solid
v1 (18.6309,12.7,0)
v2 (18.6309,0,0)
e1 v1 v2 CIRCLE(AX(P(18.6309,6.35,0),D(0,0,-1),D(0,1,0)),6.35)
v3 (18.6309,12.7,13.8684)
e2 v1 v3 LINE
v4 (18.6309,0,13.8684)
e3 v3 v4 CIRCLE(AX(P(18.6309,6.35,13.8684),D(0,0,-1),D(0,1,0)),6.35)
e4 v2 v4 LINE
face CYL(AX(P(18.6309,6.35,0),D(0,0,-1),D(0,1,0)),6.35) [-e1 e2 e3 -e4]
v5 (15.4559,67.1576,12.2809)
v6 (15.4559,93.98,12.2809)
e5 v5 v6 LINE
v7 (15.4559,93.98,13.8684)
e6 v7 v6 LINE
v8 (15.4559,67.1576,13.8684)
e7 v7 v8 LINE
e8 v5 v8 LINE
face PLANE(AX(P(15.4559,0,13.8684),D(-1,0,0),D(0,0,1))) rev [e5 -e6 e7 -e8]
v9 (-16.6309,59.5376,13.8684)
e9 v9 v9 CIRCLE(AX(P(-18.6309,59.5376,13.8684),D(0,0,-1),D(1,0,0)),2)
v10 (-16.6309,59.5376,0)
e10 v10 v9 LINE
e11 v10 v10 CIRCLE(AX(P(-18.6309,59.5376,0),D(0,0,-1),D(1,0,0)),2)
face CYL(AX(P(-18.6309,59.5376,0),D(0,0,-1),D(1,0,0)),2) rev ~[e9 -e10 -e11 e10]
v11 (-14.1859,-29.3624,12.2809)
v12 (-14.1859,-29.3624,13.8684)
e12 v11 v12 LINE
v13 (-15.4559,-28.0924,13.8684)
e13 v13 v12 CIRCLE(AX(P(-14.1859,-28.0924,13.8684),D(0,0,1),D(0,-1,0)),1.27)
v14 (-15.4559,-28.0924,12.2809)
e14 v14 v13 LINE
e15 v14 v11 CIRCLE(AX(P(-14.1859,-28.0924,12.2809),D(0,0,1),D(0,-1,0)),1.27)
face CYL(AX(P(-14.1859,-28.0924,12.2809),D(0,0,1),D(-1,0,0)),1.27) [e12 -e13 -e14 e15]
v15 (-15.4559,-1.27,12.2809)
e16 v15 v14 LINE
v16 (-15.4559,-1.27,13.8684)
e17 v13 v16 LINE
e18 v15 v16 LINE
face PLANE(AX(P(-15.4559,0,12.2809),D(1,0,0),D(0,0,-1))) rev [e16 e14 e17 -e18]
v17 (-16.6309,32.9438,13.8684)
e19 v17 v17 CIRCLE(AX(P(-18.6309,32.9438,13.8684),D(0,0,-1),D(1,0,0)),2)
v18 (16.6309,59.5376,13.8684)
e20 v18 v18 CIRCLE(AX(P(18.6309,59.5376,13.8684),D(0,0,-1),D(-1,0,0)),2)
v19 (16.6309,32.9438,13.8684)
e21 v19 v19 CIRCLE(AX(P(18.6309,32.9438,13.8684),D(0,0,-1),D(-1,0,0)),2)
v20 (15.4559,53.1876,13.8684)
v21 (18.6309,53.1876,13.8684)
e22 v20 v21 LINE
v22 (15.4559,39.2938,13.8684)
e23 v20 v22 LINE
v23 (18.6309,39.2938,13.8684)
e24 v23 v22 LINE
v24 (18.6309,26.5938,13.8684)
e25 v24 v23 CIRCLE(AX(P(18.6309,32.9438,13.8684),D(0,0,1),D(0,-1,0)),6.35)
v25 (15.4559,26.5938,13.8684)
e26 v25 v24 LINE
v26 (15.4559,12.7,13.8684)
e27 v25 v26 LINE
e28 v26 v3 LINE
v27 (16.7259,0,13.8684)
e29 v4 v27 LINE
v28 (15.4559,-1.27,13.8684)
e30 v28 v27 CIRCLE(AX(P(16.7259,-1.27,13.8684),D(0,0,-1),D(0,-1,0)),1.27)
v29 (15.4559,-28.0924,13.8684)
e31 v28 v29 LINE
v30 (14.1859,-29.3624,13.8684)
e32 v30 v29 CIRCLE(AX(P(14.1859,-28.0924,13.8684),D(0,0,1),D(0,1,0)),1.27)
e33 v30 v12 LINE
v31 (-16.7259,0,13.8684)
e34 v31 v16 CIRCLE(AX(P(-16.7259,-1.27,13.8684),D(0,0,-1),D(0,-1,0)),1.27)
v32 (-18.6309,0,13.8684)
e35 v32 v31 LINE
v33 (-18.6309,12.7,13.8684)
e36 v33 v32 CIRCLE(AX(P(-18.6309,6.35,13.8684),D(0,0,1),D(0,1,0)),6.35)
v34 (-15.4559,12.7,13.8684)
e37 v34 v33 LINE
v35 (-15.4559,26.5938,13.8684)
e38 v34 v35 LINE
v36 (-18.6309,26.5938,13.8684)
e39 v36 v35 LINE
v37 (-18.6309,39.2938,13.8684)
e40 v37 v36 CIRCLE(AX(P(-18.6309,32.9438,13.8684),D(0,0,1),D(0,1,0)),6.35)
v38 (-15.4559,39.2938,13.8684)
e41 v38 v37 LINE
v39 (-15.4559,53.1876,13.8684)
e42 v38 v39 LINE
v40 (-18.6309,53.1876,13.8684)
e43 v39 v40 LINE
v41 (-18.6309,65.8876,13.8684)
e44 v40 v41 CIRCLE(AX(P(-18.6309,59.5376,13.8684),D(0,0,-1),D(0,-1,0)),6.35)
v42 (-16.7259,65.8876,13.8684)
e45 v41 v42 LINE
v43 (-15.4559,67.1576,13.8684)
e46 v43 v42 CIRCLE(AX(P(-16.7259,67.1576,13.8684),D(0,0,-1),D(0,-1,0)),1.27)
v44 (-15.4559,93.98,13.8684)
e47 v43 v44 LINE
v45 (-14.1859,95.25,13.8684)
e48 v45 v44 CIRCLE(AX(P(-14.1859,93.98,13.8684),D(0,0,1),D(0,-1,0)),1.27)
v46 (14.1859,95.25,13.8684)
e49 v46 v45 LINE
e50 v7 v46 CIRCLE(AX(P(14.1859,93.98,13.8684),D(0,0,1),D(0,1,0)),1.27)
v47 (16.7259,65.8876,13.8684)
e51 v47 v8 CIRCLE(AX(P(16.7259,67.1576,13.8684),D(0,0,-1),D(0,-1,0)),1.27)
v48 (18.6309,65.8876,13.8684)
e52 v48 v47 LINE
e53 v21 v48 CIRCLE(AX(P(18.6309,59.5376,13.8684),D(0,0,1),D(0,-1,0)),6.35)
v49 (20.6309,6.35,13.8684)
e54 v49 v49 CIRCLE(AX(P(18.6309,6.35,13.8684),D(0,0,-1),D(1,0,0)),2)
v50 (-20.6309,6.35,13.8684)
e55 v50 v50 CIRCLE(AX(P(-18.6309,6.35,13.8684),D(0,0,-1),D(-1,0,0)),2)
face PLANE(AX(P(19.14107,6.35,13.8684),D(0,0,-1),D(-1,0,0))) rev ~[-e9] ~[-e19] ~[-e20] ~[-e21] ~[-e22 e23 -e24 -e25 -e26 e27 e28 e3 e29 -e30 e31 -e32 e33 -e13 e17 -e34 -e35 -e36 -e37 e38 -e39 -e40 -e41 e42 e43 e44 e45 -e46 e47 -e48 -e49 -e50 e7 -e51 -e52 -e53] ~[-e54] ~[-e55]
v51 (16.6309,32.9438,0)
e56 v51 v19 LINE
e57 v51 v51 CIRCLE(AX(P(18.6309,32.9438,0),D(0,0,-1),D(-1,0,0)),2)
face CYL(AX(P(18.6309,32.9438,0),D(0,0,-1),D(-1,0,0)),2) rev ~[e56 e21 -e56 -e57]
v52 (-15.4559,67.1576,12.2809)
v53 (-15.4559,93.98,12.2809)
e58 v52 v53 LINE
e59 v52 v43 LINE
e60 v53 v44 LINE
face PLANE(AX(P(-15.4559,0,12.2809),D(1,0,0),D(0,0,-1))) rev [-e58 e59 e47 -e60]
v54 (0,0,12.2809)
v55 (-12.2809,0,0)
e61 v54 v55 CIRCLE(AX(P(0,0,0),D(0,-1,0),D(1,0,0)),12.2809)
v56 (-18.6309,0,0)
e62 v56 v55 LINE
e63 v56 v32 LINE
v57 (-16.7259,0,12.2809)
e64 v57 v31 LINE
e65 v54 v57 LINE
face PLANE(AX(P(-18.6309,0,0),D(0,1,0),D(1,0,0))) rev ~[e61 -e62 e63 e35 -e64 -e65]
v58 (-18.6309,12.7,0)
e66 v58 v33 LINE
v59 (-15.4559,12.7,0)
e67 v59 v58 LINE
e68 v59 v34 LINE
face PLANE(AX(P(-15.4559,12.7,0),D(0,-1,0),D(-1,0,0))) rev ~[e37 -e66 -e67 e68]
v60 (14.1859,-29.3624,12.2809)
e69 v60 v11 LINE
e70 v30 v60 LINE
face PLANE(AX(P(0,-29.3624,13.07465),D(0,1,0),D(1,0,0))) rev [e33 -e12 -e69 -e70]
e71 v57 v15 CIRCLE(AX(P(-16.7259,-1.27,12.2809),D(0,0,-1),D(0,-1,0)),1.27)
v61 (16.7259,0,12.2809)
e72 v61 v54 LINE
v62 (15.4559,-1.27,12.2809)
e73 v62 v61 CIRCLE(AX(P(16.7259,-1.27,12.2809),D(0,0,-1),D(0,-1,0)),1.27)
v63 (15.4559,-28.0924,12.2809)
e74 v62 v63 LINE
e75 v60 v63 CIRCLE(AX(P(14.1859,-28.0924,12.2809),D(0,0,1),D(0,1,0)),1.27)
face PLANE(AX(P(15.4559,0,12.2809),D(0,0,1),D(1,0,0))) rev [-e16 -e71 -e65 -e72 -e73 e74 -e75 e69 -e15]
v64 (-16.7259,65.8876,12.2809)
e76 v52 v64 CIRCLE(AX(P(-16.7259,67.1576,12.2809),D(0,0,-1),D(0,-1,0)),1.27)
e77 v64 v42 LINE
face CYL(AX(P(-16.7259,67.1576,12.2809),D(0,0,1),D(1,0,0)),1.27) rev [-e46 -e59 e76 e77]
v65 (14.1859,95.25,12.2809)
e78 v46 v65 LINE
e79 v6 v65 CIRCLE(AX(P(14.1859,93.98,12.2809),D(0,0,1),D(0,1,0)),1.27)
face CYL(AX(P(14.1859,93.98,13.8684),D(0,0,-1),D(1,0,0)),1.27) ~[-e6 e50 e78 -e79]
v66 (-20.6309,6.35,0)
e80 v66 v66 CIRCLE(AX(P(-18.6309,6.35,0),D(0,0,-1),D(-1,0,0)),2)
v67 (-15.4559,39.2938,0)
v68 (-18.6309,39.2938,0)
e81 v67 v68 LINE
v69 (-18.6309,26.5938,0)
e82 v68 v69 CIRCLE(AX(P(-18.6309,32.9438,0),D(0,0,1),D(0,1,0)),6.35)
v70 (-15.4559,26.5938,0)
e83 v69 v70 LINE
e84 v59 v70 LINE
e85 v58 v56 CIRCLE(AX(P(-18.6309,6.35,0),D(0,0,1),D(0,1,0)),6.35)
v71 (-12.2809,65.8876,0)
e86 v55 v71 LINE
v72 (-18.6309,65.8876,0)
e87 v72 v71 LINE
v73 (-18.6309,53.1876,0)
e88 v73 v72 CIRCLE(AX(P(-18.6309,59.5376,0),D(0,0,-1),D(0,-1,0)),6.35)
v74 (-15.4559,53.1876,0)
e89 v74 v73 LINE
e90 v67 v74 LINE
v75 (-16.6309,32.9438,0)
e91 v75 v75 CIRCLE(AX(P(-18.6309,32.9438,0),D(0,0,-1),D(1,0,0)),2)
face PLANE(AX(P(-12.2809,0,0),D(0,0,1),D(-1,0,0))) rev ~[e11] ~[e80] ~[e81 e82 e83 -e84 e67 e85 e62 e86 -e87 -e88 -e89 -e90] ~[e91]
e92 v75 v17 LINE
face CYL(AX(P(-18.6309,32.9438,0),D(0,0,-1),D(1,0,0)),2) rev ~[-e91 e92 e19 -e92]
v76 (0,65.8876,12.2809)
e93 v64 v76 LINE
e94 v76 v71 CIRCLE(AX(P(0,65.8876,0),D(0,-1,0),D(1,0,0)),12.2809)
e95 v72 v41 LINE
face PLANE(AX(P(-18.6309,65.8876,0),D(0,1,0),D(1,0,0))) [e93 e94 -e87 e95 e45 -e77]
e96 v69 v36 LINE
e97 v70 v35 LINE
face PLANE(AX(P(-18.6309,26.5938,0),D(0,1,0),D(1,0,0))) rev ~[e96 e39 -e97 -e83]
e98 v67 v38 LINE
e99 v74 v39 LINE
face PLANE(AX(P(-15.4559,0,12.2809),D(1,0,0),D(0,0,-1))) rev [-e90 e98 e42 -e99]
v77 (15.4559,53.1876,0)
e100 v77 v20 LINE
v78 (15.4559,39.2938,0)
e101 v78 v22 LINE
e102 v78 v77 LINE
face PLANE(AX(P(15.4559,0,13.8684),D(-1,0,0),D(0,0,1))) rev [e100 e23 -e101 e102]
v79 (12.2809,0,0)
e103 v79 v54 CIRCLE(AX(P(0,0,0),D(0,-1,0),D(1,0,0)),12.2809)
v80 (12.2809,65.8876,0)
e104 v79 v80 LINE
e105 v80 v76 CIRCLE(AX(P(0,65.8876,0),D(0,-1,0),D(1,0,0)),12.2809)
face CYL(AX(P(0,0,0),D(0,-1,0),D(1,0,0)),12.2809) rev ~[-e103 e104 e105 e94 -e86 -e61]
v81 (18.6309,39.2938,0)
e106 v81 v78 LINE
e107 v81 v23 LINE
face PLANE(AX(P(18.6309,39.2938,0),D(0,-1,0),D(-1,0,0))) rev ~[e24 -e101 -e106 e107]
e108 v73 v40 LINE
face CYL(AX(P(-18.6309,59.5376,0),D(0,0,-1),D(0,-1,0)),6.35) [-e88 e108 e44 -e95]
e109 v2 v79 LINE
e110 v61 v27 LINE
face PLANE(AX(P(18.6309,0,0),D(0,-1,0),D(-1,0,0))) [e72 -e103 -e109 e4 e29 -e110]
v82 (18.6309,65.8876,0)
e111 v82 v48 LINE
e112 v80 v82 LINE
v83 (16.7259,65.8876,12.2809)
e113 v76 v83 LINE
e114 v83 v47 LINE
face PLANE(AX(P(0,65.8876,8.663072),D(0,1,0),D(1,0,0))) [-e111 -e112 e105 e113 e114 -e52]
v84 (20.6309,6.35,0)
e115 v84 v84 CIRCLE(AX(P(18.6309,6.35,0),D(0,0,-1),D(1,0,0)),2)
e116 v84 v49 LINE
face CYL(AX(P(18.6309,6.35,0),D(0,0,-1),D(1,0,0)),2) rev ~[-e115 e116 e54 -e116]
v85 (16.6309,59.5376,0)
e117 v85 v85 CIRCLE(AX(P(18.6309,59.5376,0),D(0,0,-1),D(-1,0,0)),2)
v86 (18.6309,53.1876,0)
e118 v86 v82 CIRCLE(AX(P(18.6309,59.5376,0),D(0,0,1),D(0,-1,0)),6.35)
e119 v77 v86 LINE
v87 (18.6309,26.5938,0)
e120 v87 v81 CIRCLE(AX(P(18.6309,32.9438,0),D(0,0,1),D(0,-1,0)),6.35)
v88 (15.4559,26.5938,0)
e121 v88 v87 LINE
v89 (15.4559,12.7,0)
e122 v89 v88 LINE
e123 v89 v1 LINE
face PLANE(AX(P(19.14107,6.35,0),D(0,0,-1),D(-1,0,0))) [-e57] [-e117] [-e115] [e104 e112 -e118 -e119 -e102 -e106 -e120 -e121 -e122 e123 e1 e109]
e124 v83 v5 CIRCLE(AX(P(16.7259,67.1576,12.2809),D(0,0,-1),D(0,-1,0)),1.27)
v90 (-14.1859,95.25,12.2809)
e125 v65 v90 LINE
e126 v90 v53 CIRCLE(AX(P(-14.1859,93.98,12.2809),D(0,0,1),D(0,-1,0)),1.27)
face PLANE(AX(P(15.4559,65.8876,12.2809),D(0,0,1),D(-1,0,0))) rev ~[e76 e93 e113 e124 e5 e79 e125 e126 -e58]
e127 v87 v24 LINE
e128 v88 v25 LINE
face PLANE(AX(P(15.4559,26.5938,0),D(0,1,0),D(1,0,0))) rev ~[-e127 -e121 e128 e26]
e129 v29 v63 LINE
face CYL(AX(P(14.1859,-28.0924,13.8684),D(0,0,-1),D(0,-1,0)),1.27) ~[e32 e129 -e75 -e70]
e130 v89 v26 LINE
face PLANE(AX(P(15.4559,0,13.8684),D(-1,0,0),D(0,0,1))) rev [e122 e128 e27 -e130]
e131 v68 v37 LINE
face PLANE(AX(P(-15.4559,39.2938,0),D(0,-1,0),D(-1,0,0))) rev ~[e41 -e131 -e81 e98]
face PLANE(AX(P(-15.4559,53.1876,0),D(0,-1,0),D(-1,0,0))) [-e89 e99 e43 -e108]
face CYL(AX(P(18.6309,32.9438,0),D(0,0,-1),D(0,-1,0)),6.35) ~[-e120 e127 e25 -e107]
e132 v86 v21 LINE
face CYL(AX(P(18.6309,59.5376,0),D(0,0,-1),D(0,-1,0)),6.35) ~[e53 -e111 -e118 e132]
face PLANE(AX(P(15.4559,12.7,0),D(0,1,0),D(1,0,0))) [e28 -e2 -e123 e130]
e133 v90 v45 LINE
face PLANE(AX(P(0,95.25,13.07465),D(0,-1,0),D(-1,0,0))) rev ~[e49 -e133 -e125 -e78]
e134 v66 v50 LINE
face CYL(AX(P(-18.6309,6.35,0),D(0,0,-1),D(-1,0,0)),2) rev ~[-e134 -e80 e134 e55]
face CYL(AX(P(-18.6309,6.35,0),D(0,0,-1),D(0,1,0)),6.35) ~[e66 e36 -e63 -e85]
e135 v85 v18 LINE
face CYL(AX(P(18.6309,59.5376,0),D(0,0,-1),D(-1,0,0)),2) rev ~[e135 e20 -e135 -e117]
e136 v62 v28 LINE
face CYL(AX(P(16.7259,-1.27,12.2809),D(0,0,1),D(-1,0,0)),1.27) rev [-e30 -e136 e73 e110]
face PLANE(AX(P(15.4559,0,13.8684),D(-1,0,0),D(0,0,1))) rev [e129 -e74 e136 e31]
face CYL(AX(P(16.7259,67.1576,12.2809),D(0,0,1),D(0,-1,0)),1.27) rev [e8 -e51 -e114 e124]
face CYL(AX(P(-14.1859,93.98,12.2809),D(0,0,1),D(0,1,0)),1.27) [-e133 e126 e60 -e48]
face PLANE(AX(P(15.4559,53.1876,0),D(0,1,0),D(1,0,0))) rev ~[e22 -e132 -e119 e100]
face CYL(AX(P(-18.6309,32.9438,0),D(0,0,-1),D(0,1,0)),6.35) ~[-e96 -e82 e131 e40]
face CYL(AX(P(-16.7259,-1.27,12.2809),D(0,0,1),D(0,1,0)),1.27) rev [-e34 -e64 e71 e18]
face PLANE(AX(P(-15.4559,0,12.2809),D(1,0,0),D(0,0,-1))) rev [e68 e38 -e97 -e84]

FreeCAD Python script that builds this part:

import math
import FreeCAD as App
import Part
import Sketcher

V = App.Vector
Q = App.Units.Quantity


def edges_at(feature, points):
    """Names of the edges that pass closest to the given points."""
    edges = feature.Shape.Edges
    near = lambda p: min(range(len(edges)), key=lambda i: edges[i].distToShape(Part.Vertex(*p))[0])
    return sorted({f"Edge{near(p) + 1}" for p in points})


def add_polygon(sketch, points):
    """Adds a closed chain of lines whose ends are joined by coincident constraints."""
    first, n = sketch.GeometryCount, len(points)
    for a, b in zip(points, points[1:] + points[:1]):
        sketch.addGeometry(Part.LineSegment(App.Vector(*a, 0), App.Vector(*b, 0)), False)
    for i in range(n):
        sketch.addConstraint(Sketcher.Constraint("Coincident", first + i, 2, first + (i + 1) % n, 1))

doc = App.newDocument("Part")
body = doc.addObject("PartDesign::Body", "Body")

sketch1 = doc.addObject("Sketcher::SketchObject", "Sketch")
body.addObject(sketch1)
sketch1.AttachmentSupport = (doc.XZ_Plane, [""])
sketch1.MapMode = "FlatFace"
sketch1.addGeometry([
    Part.LineSegment(V(-12.2809, 0, 0), V(-15.4559, 0, 0)),
    Part.LineSegment(V(-15.4559, 0, 0), V(-15.4559, 13.8684, 0)),
    Part.LineSegment(V(-15.4559, 13.8684, 0), V(15.4559, 13.8684, 0)),
    Part.LineSegment(V(15.4559, 13.8684, 0), V(15.4559, 0, 0)),
    Part.LineSegment(V(15.4559, 0, 0), V(12.2809, 0, 0)),
    Part.ArcOfCircle(Part.Circle(V(0, 0, 0), V(0, 0, 1), 12.2809), math.radians(0), math.radians(180)),
], False)
sketch1.addConstraint([
    Sketcher.Constraint("Coincident", 0, 2, 1, 1),
    Sketcher.Constraint("Coincident", 1, 2, 2, 1),
    Sketcher.Constraint("Coincident", 2, 2, 3, 1),
    Sketcher.Constraint("Coincident", 3, 2, 4, 1),
    Sketcher.Constraint("Coincident", 4, 2, 5, 1),
    Sketcher.Constraint("Coincident", 5, 2, 0, 1),
    Sketcher.Constraint("Horizontal", 0),
    Sketcher.Constraint("Vertical", 1),
    Sketcher.Constraint("Horizontal", 2),
    Sketcher.Constraint("Vertical", 3),
    Sketcher.Constraint("Horizontal", 4),
    Sketcher.Constraint("Coincident", 5, 3, -1, 1),
    Sketcher.Constraint("Symmetric", 0, 2, 3, 2, -1, 1),
    Sketcher.Constraint("PointOnObject", 0, 2, -1),
    Sketcher.Constraint("Radius", 5, Q("0.4835 in")),
    Sketcher.Constraint("DistanceX", 0, 2, 0, 1, Q("0.125 in")),
    Sketcher.Constraint("DistanceY", 1, 1, 1, 2, Q("0.546 in")),
])
pad1 = doc.addObject("PartDesign::Pad", "Pad")
body.addObject(pad1)
pad1.Profile = sketch1
pad1.Length = Q("2.594 in")
pad1.Reversed = True

sketch2 = doc.addObject("Sketcher::SketchObject", "Sketch001")
body.addObject(sketch2)
sketch2.AttachmentSupport = (doc.XZ_Plane, [""])
sketch2.MapMode = "FlatFace"
sketch2.AttachmentOffset = App.Placement(V(0, 0, -2.594 * 25.4), App.Rotation())
add_polygon(sketch2, [(15.4559, 12.2809), (-15.4559, 12.2809), (-15.4559, 13.8684), (15.4559, 13.8684)])
sketch2.addConstraint([
    Sketcher.Constraint("Horizontal", 0),
    Sketcher.Constraint("Vertical", 1),
    Sketcher.Constraint("Horizontal", 2),
    Sketcher.Constraint("Vertical", 3),
    Sketcher.Constraint("DistanceX", 0, 2, 0, 1, Q("1.217 in")),
    Sketcher.Constraint("DistanceY", 1, 1, 1, 2, Q("0.0625 in")),
    Sketcher.Constraint("DistanceY", -1, 1, 1, 2, Q("0.546 in")),
    Sketcher.Constraint("DistanceX", 0, 2, -1, 1, Q("0.6085 in")),
])
pad2 = doc.addObject("PartDesign::Pad", "Pad001")
body.addObject(pad2)
pad2.Profile = sketch2
pad2.Length = Q("1.156 in")
pad2.Reversed = True
doc.recompute()

datumplane = doc.addObject("PartDesign::Plane", "DatumPlane")
body.addObject(datumplane)
datumplane.AttachmentSupport = (doc.XZ_Plane, [""])
datumplane.MapMode = "FlatFace"
datumplane.AttachmentOffset = App.Placement(V(0, 0, -1.297 * 25.4), App.Rotation())
mirrored = doc.addObject("PartDesign::Mirrored", "Mirrored")
body.addObject(mirrored)
mirrored.Originals = [pad2]
mirrored.MirrorPlane = (datumplane, [""])
body.Tip = mirrored

sketch3 = doc.addObject("Sketcher::SketchObject", "Sketch002")
body.addObject(sketch3)
sketch3.AttachmentSupport = (doc.XY_Plane, [""])
sketch3.MapMode = "FlatFace"
sketch3.addGeometry([
    Part.LineSegment(V(15.4559, 26.5938, 0), V(15.4559, 39.2938, 0)),
    Part.LineSegment(V(15.4559, 39.2938, 0), V(18.6309, 39.2938, 0)),
    Part.ArcOfCircle(Part.Circle(V(18.6309, 32.9438, 0), V(0, 0, 1), 6.35), math.radians(-90), math.radians(90)),
    Part.LineSegment(V(18.6309, 26.5938, 0), V(15.4559, 26.5938, 0)),
    Part.Circle(V(18.6309, 32.9438, 0), V(0, 0, 1), 2),
    Part.LineSegment(V(15.4559, 12.7, 0), V(18.6309, 12.7, 0)),
    Part.ArcOfCircle(Part.Circle(V(18.6309, 6.35, 0), V(0, 0, 1), 6.35), math.radians(-90), math.radians(90)),
    Part.LineSegment(V(18.6309, 0, 0), V(15.4559, 0, 0)),
    Part.LineSegment(V(15.4559, 0, 0), V(15.4559, 12.7, 0)),
    Part.Circle(V(18.6309, 6.35, 0), V(0, 0, 1), 2),
    Part.LineSegment(V(15.4559, 65.8876, 0), V(18.6309, 65.8876, 0)),
    Part.ArcOfCircle(Part.Circle(V(18.6309, 59.5376, 0), V(0, 0, 1), 6.35), math.radians(-90), math.radians(90)),
    Part.LineSegment(V(18.6309, 53.1876, 0), V(15.4559, 53.1876, 0)),
    Part.LineSegment(V(15.4559, 53.1876, 0), V(15.4559, 65.8876, 0)),
    Part.Circle(V(18.6309, 59.5376, 0), V(0, 0, 1), 2),
    Part.LineSegment(V(-15.4559, 0, 0), V(-18.6309, 0, 0)),
    Part.ArcOfCircle(Part.Circle(V(-18.6309, 6.35, 0), V(0, 0, 1), 6.35), math.radians(90), math.radians(270)),
    Part.LineSegment(V(-18.6309, 12.7, 0), V(-15.4559, 12.7, 0)),
    Part.LineSegment(V(-15.4559, 12.7, 0), V(-15.4559, 0, 0)),
    Part.Circle(V(-18.6309, 6.35, 0), V(0, 0, 1), 2),
    Part.LineSegment(V(-15.4559, 53.1876, 0), V(-18.6309, 53.1876, 0)),
    Part.ArcOfCircle(Part.Circle(V(-18.6309, 59.5376, 0), V(0, 0, 1), 6.35), math.radians(90), math.radians(270)),
    Part.LineSegment(V(-18.6309, 65.8876, 0), V(-15.4559, 65.8876, 0)),
    Part.LineSegment(V(-15.4559, 65.8876, 0), V(-15.4559, 53.1876, 0)),
    Part.Circle(V(-18.6309, 59.5376, 0), V(0, 0, 1), 2),
    Part.LineSegment(V(-15.4559, 26.5938, 0), V(-18.6309, 26.5938, 0)),
    Part.ArcOfCircle(Part.Circle(V(-18.6309, 32.9438, 0), V(0, 0, 1), 6.35), math.radians(90), math.radians(270)),
    Part.LineSegment(V(-18.6309, 39.2938, 0), V(-15.4559, 39.2938, 0)),
    Part.LineSegment(V(-15.4559, 39.2938, 0), V(-15.4559, 26.5938, 0)),
    Part.Circle(V(-18.6309, 32.9438, 0), V(0, 0, 1), 2),
], False)
sketch3.addConstraint([
    Sketcher.Constraint("Coincident", 0, 2, 1, 1),
    Sketcher.Constraint("Tangent", 1, 2, 2, 2),
    Sketcher.Constraint("Tangent", 2, 1, 3, 1),
    Sketcher.Constraint("Coincident", 3, 2, 0, 1),
    Sketcher.Constraint("Tangent", 5, 2, 6, 2),
    Sketcher.Constraint("Tangent", 6, 1, 7, 1),
    Sketcher.Constraint("Coincident", 7, 2, 8, 1),
    Sketcher.Constraint("Coincident", 8, 2, 5, 1),
    Sketcher.Constraint("Tangent", 10, 2, 11, 2),
    Sketcher.Constraint("Tangent", 11, 1, 12, 1),
    Sketcher.Constraint("Coincident", 12, 2, 13, 1),
    Sketcher.Constraint("Coincident", 13, 2, 10, 1),
    Sketcher.Constraint("Tangent", 15, 2, 16, 2),
    Sketcher.Constraint("Tangent", 16, 1, 17, 1),
    Sketcher.Constraint("Coincident", 17, 2, 18, 1),
    Sketcher.Constraint("Coincident", 18, 2, 15, 1),
    Sketcher.Constraint("Tangent", 20, 2, 21, 2),
    Sketcher.Constraint("Tangent", 21, 1, 22, 1),
    Sketcher.Constraint("Coincident", 22, 2, 23, 1),
    Sketcher.Constraint("Coincident", 23, 2, 20, 1),
    Sketcher.Constraint("Tangent", 25, 2, 26, 2),
    Sketcher.Constraint("Tangent", 26, 1, 27, 1),
    Sketcher.Constraint("Coincident", 27, 2, 28, 1),
    Sketcher.Constraint("Coincident", 28, 2, 25, 1),
    Sketcher.Constraint("Vertical", 0),
    Sketcher.Constraint("Horizontal", 1),
    Sketcher.Constraint("Horizontal", 3),
    Sketcher.Constraint("Horizontal", 5),
    Sketcher.Constraint("Horizontal", 7),
    Sketcher.Constraint("Vertical", 8),
    Sketcher.Constraint("Horizontal", 10),
    Sketcher.Constraint("Horizontal", 12),
    Sketcher.Constraint("Vertical", 13),
    Sketcher.Constraint("Horizontal", 15),
    Sketcher.Constraint("Horizontal", 17),
    Sketcher.Constraint("Vertical", 18),
    Sketcher.Constraint("Horizontal", 20),
    Sketcher.Constraint("Horizontal", 22),
    Sketcher.Constraint("Vertical", 23),
    Sketcher.Constraint("Horizontal", 25),
    Sketcher.Constraint("Horizontal", 27),
    Sketcher.Constraint("Vertical", 28),
    Sketcher.Constraint("Coincident", 4, 3, 2, 3),
    Sketcher.Constraint("Coincident", 9, 3, 6, 3),
    Sketcher.Constraint("Coincident", 14, 3, 11, 3),
    Sketcher.Constraint("Coincident", 19, 3, 16, 3),
    Sketcher.Constraint("Coincident", 24, 3, 21, 3),
    Sketcher.Constraint("Coincident", 29, 3, 26, 3),
    Sketcher.Constraint("Equal", 2, 6),
    Sketcher.Constraint("Equal", 4, 9),
    Sketcher.Constraint("Equal", 6, 11),
    Sketcher.Constraint("Equal", 9, 14),
    Sketcher.Constraint("Equal", 11, 16),
    Sketcher.Constraint("Equal", 14, 19),
    Sketcher.Constraint("Equal", 16, 21),
    Sketcher.Constraint("Equal", 19, 24),
    Sketcher.Constraint("Equal", 21, 26),
    Sketcher.Constraint("Equal", 24, 29),
    Sketcher.Constraint("Symmetric", 6, 1, 15, 2, -1, 1),
    Sketcher.Constraint("Symmetric", 11, 3, 21, 3, -2),
    Sketcher.Constraint("Symmetric", 2, 3, 26, 3, -2),
    Sketcher.Constraint("Symmetric", 8, 2, 17, 2, -2),
    Sketcher.Constraint("Vertical", 4, 3, 6, 3),
    Sketcher.Constraint("Vertical", 9, 3, 11, 3),
    Sketcher.Constraint("Vertical", 3, 2, 7, 2),
    Sketcher.Constraint("Vertical", 8, 2, 12, 2),
    Sketcher.Constraint("Vertical", 18, 2, 22, 2),
    Sketcher.Constraint("Vertical", 23, 2, 27, 2),
    Sketcher.Constraint("Radius", 2, Q("0.25 in")),
    Sketcher.Constraint("Diameter", 4, 4.0),
    Sketcher.Constraint("DistanceX", 1, 1, 1, 2, Q("0.125 in")),
    Sketcher.Constraint("DistanceY", -1, 1, 2, 3, Q("1.297 in")),
    Sketcher.Constraint("DistanceY", -1, 1, 11, 3, Q("2.344 in")),
    Sketcher.Constraint("DistanceX", 16, 3, 6, 3, Q("1.467 in")),
])
pad3 = doc.addObject("PartDesign::Pad", "Pad002")
body.addObject(pad3)
pad3.Profile = sketch3
pad3.Length = Q("0.546 in")
doc.recompute()

fillet = doc.addObject("PartDesign::Fillet", "Fillet")
body.addObject(fillet)
fillet.Base = (pad3, edges_at(pad3, [
    (-15.456, 65.888, 13.075),
    (-15.456, 0, 13.075),
    (15.456, 95.25, 13.075),
    (-15.456, 95.25, 13.075),
    (-15.456, -29.362, 13.075),
    (15.456, -29.362, 13.075),
    (15.456, 65.888, 13.075),
    (15.456, 0, 13.075),
]))
fillet.Radius = Q("0.05 in")

doc.recompute()
